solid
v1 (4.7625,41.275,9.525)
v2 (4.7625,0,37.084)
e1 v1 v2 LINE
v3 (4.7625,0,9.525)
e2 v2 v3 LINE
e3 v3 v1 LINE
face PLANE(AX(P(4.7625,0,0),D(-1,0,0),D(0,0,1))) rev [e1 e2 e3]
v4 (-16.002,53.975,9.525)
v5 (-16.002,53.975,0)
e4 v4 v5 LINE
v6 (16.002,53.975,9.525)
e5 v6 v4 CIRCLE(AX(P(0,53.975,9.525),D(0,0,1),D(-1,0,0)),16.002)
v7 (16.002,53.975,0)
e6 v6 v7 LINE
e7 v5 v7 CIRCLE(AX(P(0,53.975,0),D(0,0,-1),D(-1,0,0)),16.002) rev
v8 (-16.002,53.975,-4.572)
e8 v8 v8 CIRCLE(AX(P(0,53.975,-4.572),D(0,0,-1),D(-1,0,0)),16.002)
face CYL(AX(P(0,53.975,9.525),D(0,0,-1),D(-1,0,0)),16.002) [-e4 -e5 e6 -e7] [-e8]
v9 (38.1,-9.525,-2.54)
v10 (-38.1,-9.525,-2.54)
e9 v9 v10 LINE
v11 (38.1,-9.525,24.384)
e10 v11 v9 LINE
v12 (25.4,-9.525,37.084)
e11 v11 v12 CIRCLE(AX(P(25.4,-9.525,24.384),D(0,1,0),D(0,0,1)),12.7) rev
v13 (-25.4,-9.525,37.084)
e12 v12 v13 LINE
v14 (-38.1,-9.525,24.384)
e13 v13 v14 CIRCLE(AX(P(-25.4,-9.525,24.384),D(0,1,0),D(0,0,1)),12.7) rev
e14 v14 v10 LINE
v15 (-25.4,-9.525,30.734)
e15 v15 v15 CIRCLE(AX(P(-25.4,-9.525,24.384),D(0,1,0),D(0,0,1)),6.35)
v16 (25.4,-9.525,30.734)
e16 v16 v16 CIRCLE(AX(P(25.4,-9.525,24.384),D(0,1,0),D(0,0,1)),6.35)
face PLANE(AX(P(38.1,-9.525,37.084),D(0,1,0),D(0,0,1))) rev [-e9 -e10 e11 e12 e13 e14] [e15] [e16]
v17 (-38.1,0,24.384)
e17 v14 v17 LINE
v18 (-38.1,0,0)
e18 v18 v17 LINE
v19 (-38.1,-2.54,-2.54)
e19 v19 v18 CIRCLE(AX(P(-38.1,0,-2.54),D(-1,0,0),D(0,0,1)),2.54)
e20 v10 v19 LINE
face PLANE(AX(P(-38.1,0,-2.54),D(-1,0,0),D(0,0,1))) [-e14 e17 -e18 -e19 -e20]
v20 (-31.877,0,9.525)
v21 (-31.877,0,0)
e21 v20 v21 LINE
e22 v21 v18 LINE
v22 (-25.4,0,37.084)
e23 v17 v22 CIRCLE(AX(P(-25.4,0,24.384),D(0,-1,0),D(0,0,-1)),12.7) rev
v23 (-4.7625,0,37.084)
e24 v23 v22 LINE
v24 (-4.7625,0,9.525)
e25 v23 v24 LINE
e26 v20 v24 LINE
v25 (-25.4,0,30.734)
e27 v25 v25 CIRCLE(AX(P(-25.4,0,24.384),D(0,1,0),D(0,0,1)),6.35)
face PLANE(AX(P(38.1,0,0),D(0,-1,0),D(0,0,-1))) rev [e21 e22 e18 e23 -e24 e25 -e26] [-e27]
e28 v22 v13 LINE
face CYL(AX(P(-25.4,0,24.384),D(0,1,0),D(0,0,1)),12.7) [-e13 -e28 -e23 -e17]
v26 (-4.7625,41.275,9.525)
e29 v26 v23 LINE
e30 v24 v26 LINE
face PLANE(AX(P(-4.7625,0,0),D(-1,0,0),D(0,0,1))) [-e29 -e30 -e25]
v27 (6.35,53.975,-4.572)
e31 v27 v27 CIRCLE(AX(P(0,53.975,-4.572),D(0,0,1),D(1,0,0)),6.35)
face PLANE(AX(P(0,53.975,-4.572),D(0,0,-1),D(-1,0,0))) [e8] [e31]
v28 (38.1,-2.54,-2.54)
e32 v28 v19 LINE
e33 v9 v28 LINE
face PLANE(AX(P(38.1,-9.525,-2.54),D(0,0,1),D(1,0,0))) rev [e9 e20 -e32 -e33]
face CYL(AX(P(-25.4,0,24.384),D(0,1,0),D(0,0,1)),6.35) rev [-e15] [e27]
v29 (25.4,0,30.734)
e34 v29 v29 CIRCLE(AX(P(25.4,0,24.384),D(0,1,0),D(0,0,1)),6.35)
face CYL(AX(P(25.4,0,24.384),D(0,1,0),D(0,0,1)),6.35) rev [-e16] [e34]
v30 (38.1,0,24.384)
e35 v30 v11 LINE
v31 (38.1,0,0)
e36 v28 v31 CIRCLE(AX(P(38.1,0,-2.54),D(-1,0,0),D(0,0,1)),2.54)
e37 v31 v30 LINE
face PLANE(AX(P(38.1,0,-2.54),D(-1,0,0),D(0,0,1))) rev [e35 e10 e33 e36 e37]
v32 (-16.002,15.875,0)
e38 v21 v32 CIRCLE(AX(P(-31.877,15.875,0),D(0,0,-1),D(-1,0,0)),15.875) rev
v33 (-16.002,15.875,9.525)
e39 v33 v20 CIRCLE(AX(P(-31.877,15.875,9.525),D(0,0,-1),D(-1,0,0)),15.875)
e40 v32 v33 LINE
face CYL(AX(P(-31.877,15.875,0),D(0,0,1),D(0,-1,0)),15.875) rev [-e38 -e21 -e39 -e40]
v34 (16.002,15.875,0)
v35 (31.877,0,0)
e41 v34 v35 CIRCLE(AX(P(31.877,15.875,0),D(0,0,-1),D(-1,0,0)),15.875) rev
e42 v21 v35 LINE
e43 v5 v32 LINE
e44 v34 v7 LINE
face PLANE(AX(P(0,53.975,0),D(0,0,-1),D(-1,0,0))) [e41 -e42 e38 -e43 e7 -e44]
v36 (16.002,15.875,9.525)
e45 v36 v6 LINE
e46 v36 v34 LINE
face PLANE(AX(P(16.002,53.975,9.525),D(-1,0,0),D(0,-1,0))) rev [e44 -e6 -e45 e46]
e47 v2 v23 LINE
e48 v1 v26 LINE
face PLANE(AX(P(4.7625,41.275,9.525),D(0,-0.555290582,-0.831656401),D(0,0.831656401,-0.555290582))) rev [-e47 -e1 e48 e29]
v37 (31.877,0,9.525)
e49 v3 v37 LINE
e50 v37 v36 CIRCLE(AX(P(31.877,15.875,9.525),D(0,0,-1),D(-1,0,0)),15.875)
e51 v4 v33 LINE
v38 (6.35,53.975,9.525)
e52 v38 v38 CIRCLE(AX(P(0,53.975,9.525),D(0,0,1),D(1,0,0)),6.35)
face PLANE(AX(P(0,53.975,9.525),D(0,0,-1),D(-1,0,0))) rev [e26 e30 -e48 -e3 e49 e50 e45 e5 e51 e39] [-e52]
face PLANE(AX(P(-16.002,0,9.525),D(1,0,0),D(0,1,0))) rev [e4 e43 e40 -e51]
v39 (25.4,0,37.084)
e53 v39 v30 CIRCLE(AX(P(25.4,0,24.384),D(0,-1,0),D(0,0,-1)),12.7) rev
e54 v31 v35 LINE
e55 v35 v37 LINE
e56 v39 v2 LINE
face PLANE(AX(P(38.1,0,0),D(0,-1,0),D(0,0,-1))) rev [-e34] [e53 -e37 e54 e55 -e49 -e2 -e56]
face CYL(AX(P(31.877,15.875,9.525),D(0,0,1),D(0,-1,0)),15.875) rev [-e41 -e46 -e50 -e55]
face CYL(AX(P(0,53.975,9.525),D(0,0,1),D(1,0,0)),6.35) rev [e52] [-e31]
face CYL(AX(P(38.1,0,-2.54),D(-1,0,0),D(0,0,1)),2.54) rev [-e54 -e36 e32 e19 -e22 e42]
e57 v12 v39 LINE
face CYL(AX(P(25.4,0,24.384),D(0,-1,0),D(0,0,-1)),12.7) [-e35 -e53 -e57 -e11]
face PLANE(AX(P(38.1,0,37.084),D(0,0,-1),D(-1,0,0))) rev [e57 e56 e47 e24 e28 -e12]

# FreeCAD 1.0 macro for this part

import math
import FreeCAD as App
import Part
import Sketcher

V = App.Vector
Q = App.Units.Quantity


def edges_at(feature, points):
    """Names of the edges that pass closest to the given points."""
    edges = feature.Shape.Edges
    near = lambda p: min(range(len(edges)), key=lambda i: edges[i].distToShape(Part.Vertex(*p))[0])
    return sorted({f"Edge{near(p) + 1}" for p in points})

doc = App.newDocument("Part")
body = doc.addObject("PartDesign::Body", "Body")

sketch1 = body.newObject("Sketcher::SketchObject", "Sketch")
sketch1.AttachmentSupport = (doc.getObject("YZ_Plane"), [""])
sketch1.MapMode = "FlatFace"
sketch1.addGeometry(Part.LineSegment(V(0, 0, 0), V(0, 37.1, 0)), False)
sketch1.addGeometry(Part.LineSegment(V(0, 37.1, 0), V(-9.5, 37.1, 0)), False)
sketch1.addGeometry(Part.LineSegment(V(-9.5, 37.1, 0), V(-9.5, -2.5, 0)), False)
sketch1.addGeometry(Part.LineSegment(V(-9.5, -2.5, 0), V(-2.5, -2.5, 0)), False)
sketch1.addGeometry(Part.ArcOfCircle(Part.Circle(V(0, -2.5, 0), V(0, 0, 1), 2.5), math.radians(90), math.radians(180)), False)
sketch1.addConstraint(Sketcher.Constraint("Coincident", 0, 2, 1, 1))
sketch1.addConstraint(Sketcher.Constraint("Coincident", 1, 2, 2, 1))
sketch1.addConstraint(Sketcher.Constraint("Coincident", 2, 2, 3, 1))
sketch1.addConstraint(Sketcher.Constraint("Coincident", 3, 2, 4, 2))
sketch1.addConstraint(Sketcher.Constraint("Coincident", 4, 1, 0, 1))
sketch1.addConstraint(Sketcher.Constraint("Vertical", 0))
sketch1.addConstraint(Sketcher.Constraint("Horizontal", 1))
sketch1.addConstraint(Sketcher.Constraint("Vertical", 2))
sketch1.addConstraint(Sketcher.Constraint("Horizontal", 3))
sketch1.addConstraint(Sketcher.Constraint("Coincident", 4, 1, -1, 1))
sketch1.addConstraint(Sketcher.Constraint("PointOnObject", 4, 3, -2))
sketch1.addConstraint(Sketcher.Constraint("Horizontal", 4, 3, 2, 2))
sketch1.addConstraint(Sketcher.Constraint("Radius", 4, Q("0.1 in")))
sketch1.addConstraint(Sketcher.Constraint("DistanceY", 0, 1, 0, 2, Q("1.46 in")))
sketch1.addConstraint(Sketcher.Constraint("DistanceX", 1, 2, 1, 1, Q("0.375 in")))
pad1 = body.newObject("PartDesign::Pad", "Pad")
pad1.Profile = sketch1
pad1.Length = Q("3 in")
pad1.Midplane = True

sketch2 = body.newObject("Sketcher::SketchObject", "Sketch001")
sketch2.AttachmentSupport = (doc.getObject("XY_Plane"), [""])
sketch2.MapMode = "FlatFace"
sketch2.addGeometry(Part.LineSegment(V(-16, 0, 0), V(16, 0, 0)), False)
sketch2.addGeometry(Part.LineSegment(V(16, 0, 0), V(16, 54, 0)), False)
sketch2.addGeometry(Part.ArcOfCircle(Part.Circle(V(0, 54, 0), V(0, 0, 1), 16), math.radians(0), math.radians(180)), False)
sketch2.addGeometry(Part.LineSegment(V(-16, 54, 0), V(-16, 0, 0)), False)
sketch2.addConstraint(Sketcher.Constraint("Coincident", 0, 2, 1, 1))
sketch2.addConstraint(Sketcher.Constraint("Tangent", 1, 2, 2, 1))
sketch2.addConstraint(Sketcher.Constraint("Tangent", 2, 2, 3, 1))
sketch2.addConstraint(Sketcher.Constraint("Coincident", 3, 2, 0, 1))
sketch2.addConstraint(Sketcher.Constraint("Horizontal", 0))
sketch2.addConstraint(Sketcher.Constraint("Vertical", 1))
sketch2.addConstraint(Sketcher.Constraint("Vertical", 3))
sketch2.addConstraint(Sketcher.Constraint("Symmetric", 0, 2, 3, 2, -1, 1))
sketch2.addConstraint(Sketcher.Constraint("Radius", 2, Q("0.63 in")))
sketch2.addConstraint(Sketcher.Constraint("DistanceY", 1, 1, 1, 2, Q("2.125 in")))
pad2 = body.newObject("PartDesign::Pad", "Pad001")
pad2.Profile = sketch2
pad2.Length = Q("0.375 in")

sketch3 = body.newObject("Sketcher::SketchObject", "Sketch002")
sketch3.AttachmentSupport = (doc.getObject("XY_Plane"), [""])
sketch3.MapMode = "FlatFace"
sketch3.addGeometry(Part.Circle(V(0, 54, 0), V(0, 0, 1), 16), False)
sketch3.addConstraint(Sketcher.Constraint("PointOnObject", 0, 3, -2))
sketch3.addConstraint(Sketcher.Constraint("Diameter", 0, Q("1.26 in")))
sketch3.addConstraint(Sketcher.Constraint("DistanceY", -1, 1, 0, 3, Q("2.125 in")))
pad3 = body.newObject("PartDesign::Pad", "Pad002")
pad3.Profile = sketch3
pad3.Length = Q("0.18 in")
pad3.Reversed = True

sketch4 = body.newObject("Sketcher::SketchObject", "Sketch003")
sketch4.AttachmentSupport = (doc.getObject("YZ_Plane"), [""])
sketch4.MapMode = "FlatFace"
sketch4.addGeometry(Part.LineSegment(V(41, 10, 0), V(0, 37, 0)), False)
sketch4.addGeometry(Part.LineSegment(V(0, 37, 0), V(0, 10, 0)), False)
sketch4.addGeometry(Part.LineSegment(V(0, 10, 0), V(41, 10, 0)), False)
sketch4.addConstraint(Sketcher.Constraint("Coincident", 0, 2, 1, 1))
sketch4.addConstraint(Sketcher.Constraint("Coincident", 1, 2, 2, 1))
sketch4.addConstraint(Sketcher.Constraint("Coincident", 2, 2, 0, 1))
sketch4.addConstraint(Sketcher.Constraint("Vertical", 1))
sketch4.addConstraint(Sketcher.Constraint("Horizontal", 2))
sketch4.addConstraint(Sketcher.Constraint("PointOnObject", 0, 2, -2))
sketch4.addConstraint(Sketcher.Constraint("DistanceX", 2, 1, 2, 2, Q("1.625 in")))
sketch4.addConstraint(Sketcher.Constraint("DistanceY", 1, 2, 1, 1, Q("1.085 in")))
sketch4.addConstraint(Sketcher.Constraint("DistanceY", -1, 1, 0, 2, Q("1.46 in")))
pad4 = body.newObject("PartDesign::Pad", "Pad003")
pad4.Profile = sketch4
pad4.Length = Q("0.375 in")
pad4.Midplane = True
doc.recompute()

fillet = body.newObject("PartDesign::Fillet", "Fillet")
fillet.Base = (pad4, edges_at(pad4, [(-16.002, 0, 4.763), (16.002, 0, 4.763)]))
fillet.Radius = Q("0.625 in")
doc.recompute()

fillet2 = body.newObject("PartDesign::Fillet", "Fillet001")
fillet2.Base = (fillet, edges_at(fillet, [(38.1, -4.763, 37.084), (-38.1, -4.763, 37.084)]))
fillet2.Radius = Q("0.5 in")

sketch5 = body.newObject("Sketcher::SketchObject", "Sketch004")
sketch5.AttachmentSupport = (doc.getObject("XZ_Plane"), [""])
sketch5.MapMode = "FlatFace"
sketch5.addGeometry(Part.Circle(V(-25, 24, 0), V(0, 0, 1), 6), False)
sketch5.addGeometry(Part.Circle(V(25, 24, 0), V(0, 0, 1), 6), False)
sketch5.addConstraint(Sketcher.Constraint("Equal", 0, 1))
sketch5.addConstraint(Sketcher.Constraint("Symmetric", 0, 3, 1, 3, -2))
sketch5.addConstraint(Sketcher.Constraint("Diameter", 0, Q("0.5 in")))
sketch5.addConstraint(Sketcher.Constraint("DistanceX", 0, 3, -1, 1, Q("1 in")))
sketch5.addConstraint(Sketcher.Constraint("DistanceY", -1, 1, 0, 3, Q("0.96 in")))
doc.recompute()
hole = body.newObject("PartDesign::Hole", "Hole")
hole.Profile = sketch5
hole.ThreadType = "None"
hole.Diameter = Q("0.5 in")
hole.DepthType = "ThroughAll"
hole.Reversed = True

sketch6 = body.newObject("Sketcher::SketchObject", "Sketch005")
sketch6.AttachmentSupport = (doc.getObject("XY_Plane"), [""])
sketch6.MapMode = "FlatFace"
sketch6.AttachmentOffset = App.Placement(V(0, 0, 0.375 * 25.4), App.Rotation())
sketch6.addGeometry(Part.Circle(V(0, 54, 0), V(0, 0, 1), 6), False)
sketch6.addConstraint(Sketcher.Constraint("PointOnObject", 0, 3, -2))
sketch6.addConstraint(Sketcher.Constraint("Diameter", 0, Q("0.5 in")))
sketch6.addConstraint(Sketcher.Constraint("DistanceY", -1, 1, 0, 3, Q("2.125 in")))
doc.recompute()
hole2 = body.newObject("PartDesign::Hole", "Hole001")
hole2.Profile = sketch6
hole2.ThreadType = "None"
hole2.Diameter = Q("0.5 in")
hole2.DepthType = "ThroughAll"

doc.recompute()
